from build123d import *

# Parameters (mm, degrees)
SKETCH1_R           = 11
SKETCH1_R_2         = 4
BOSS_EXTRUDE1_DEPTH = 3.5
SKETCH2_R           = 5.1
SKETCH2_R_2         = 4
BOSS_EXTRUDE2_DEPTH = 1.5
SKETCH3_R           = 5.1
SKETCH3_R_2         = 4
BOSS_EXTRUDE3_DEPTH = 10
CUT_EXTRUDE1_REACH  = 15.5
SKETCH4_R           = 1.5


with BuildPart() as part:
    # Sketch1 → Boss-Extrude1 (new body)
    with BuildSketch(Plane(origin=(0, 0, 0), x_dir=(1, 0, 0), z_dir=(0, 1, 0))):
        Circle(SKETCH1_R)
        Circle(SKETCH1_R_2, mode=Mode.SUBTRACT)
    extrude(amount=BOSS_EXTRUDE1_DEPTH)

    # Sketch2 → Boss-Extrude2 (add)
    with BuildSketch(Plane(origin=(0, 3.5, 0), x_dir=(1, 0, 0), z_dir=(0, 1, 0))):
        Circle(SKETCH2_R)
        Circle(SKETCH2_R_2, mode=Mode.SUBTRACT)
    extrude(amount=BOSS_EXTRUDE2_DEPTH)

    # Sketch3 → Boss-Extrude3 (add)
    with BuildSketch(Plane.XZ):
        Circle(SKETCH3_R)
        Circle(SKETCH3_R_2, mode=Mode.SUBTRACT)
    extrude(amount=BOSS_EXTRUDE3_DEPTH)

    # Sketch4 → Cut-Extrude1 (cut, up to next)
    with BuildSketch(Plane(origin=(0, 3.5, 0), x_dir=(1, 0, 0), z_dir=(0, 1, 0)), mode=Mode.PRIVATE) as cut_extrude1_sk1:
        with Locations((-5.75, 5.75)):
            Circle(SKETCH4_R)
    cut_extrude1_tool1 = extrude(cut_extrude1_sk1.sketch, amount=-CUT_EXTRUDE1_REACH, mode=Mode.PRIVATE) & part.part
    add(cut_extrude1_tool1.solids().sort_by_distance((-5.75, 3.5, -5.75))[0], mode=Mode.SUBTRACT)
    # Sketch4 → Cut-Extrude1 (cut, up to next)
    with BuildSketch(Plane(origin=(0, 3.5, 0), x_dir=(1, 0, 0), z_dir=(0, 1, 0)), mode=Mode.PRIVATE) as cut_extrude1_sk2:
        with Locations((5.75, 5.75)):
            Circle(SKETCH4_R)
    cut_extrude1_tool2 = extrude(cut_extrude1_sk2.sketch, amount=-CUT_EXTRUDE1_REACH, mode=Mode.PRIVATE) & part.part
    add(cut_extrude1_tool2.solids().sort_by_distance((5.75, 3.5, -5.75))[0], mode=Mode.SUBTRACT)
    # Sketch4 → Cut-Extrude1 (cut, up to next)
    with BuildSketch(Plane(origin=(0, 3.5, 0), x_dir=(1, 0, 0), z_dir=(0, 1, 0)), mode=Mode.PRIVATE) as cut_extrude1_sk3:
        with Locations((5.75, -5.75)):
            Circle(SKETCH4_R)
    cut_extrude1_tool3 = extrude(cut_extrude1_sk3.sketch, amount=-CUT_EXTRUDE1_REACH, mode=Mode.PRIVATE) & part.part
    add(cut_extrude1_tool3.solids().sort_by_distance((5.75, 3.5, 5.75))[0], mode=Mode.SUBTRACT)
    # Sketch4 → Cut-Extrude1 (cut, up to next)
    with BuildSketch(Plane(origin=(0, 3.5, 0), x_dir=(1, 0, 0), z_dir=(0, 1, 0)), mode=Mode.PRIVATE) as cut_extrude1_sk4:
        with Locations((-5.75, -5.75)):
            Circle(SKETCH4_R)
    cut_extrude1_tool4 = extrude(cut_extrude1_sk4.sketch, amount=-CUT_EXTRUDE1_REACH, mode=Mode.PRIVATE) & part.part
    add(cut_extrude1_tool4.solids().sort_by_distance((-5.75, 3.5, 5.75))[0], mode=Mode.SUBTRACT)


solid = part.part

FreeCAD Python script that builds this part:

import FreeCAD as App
import Part
import Sketcher
Q = App.Units.Quantity

doc = App.newDocument("Part")
body = doc.addObject("PartDesign::Body", "Body")

# Sketch on XZ plane
sketch1 = body.newObject("Sketcher::SketchObject", "Sketch")
sketch1.AttachmentSupport = (doc.getObject("XZ_Plane"), [""])
sketch1.MapMode = "FlatFace"
sketch1.addGeometry([
    Part.Circle(App.Vector(0, 0, 0), App.Vector(0, 0, 1), 11),
    Part.Circle(App.Vector(0, 0, 0), App.Vector(0, 0, 1), 4),
], False)
sketch1.addConstraint([
    Sketcher.Constraint("Coincident", 0, 3, -1, 1),
    Sketcher.Constraint("Coincident", 1, 3, -1, 1),
    Sketcher.Constraint("Diameter", 0, Q("22 mm")),
    Sketcher.Constraint("Diameter", 1, Q("8 mm")),
])
pad1 = body.newObject("PartDesign::Pad", "Pad")
pad1.Profile = sketch1
pad1.Length = 3.5
pad1.Reversed = True

# Sketch on XZ plane
sketch2 = body.newObject("Sketcher::SketchObject", "Sketch001")
sketch2.AttachmentSupport = (doc.getObject("XZ_Plane"), [""])
sketch2.MapMode = "FlatFace"
sketch2.AttachmentOffset = App.Placement(App.Vector(0, 0, -3.5), App.Rotation())
sketch2.addGeometry([
    Part.Circle(App.Vector(0, 0, 0), App.Vector(0, 0, 1), 5.1),
    Part.Circle(App.Vector(0, 0, 0), App.Vector(0, 0, 1), 4),
], False)
sketch2.addConstraint([
    Sketcher.Constraint("Coincident", 0, 3, -1, 1),
    Sketcher.Constraint("Coincident", 1, 3, -1, 1),
    Sketcher.Constraint("Diameter", 1, Q("8 mm")),
    Sketcher.Constraint("Diameter", 0, Q("10.2 mm")),
])
pad2 = body.newObject("PartDesign::Pad", "Pad001")
pad2.Profile = sketch2
pad2.Length = 1.5
pad2.Reversed = True

# Sketch on XZ plane
sketch3 = body.newObject("Sketcher::SketchObject", "Sketch002")
sketch3.AttachmentSupport = (doc.getObject("XZ_Plane"), [""])
sketch3.MapMode = "FlatFace"
sketch3.addGeometry([
    Part.Circle(App.Vector(0, 0, 0), App.Vector(0, 0, 1), 5.1),
    Part.Circle(App.Vector(0, 0, 0), App.Vector(0, 0, 1), 4),
], False)
sketch3.addConstraint([
    Sketcher.Constraint("Coincident", 0, 3, -1, 1),
    Sketcher.Constraint("Coincident", 1, 3, -1, 1),
    Sketcher.Constraint("Diameter", 1, Q("8 mm")),
    Sketcher.Constraint("Diameter", 0, Q("10.2 mm")),
])
pad3 = body.newObject("PartDesign::Pad", "Pad002")
pad3.Profile = sketch3
pad3.Length = 10

# Sketch on XZ plane
sketch4 = body.newObject("Sketcher::SketchObject", "Sketch003")
sketch4.AttachmentSupport = (doc.getObject("XZ_Plane"), [""])
sketch4.MapMode = "FlatFace"
sketch4.AttachmentOffset = App.Placement(App.Vector(0, 0, -3.5), App.Rotation())
sketch4.addGeometry(Part.Circle(App.Vector(-5.8, -5.8, 0), App.Vector(0, 0, 1), 1.5), False)
sketch4.addConstraint([
    Sketcher.Constraint("Diameter", 0, Q("3 mm")),
    Sketcher.Constraint("DistanceX", 0, 3, -1, 1, Q("5.75 mm")),
    Sketcher.Constraint("DistanceY", 0, 3, -1, 1, Q("5.75 mm")),
])
pocket1 = body.newObject("PartDesign::Pocket", "Pocket")
pocket1.Profile = sketch4
pocket1.Type = "UpToFirst"
pocket1.Reversed = True

# Sketch on XZ plane
sketch5 = body.newObject("Sketcher::SketchObject", "Sketch004")
sketch5.AttachmentSupport = (doc.getObject("XZ_Plane"), [""])
sketch5.MapMode = "FlatFace"
sketch5.AttachmentOffset = App.Placement(App.Vector(0, 0, -3.5), App.Rotation())
sketch5.addGeometry(Part.Circle(App.Vector(5.8, -5.8, 0), App.Vector(0, 0, 1), 1.5), False)
sketch5.addConstraint([
    Sketcher.Constraint("Diameter", 0, Q("3 mm")),
    Sketcher.Constraint("DistanceX", -1, 1, 0, 3, Q("5.75 mm")),
    Sketcher.Constraint("DistanceY", 0, 3, -1, 1, Q("5.75 mm")),
])
pocket2 = body.newObject("PartDesign::Pocket", "Pocket001")
pocket2.Profile = sketch5
pocket2.Type = "UpToFirst"
pocket2.Reversed = True

# Sketch on XZ plane
sketch6 = body.newObject("Sketcher::SketchObject", "Sketch005")
sketch6.AttachmentSupport = (doc.getObject("XZ_Plane"), [""])
sketch6.MapMode = "FlatFace"
sketch6.AttachmentOffset = App.Placement(App.Vector(0, 0, -3.5), App.Rotation())
sketch6.addGeometry(Part.Circle(App.Vector(5.8, 5.8, 0), App.Vector(0, 0, 1), 1.5), False)
sketch6.addConstraint([
    Sketcher.Constraint("Diameter", 0, Q("3 mm")),
    Sketcher.Constraint("DistanceX", -1, 1, 0, 3, Q("5.75 mm")),
    Sketcher.Constraint("DistanceY", -1, 1, 0, 3, Q("5.75 mm")),
])
pocket3 = body.newObject("PartDesign::Pocket", "Pocket002")
pocket3.Profile = sketch6
pocket3.Type = "UpToFirst"
pocket3.Reversed = True

# Sketch on XZ plane
sketch7 = body.newObject("Sketcher::SketchObject", "Sketch006")
sketch7.AttachmentSupport = (doc.getObject("XZ_Plane"), [""])
sketch7.MapMode = "FlatFace"
sketch7.AttachmentOffset = App.Placement(App.Vector(0, 0, -3.5), App.Rotation())
sketch7.addGeometry(Part.Circle(App.Vector(-5.8, 5.8, 0), App.Vector(0, 0, 1), 1.5), False)
sketch7.addConstraint([
    Sketcher.Constraint("Diameter", 0, Q("3 mm")),
    Sketcher.Constraint("DistanceX", 0, 3, -1, 1, Q("5.75 mm")),
    Sketcher.Constraint("DistanceY", -1, 1, 0, 3, Q("5.75 mm")),
])
pocket4 = body.newObject("PartDesign::Pocket", "Pocket003")
pocket4.Profile = sketch7
pocket4.Type = "UpToFirst"
pocket4.Reversed = True

doc.recompute()
